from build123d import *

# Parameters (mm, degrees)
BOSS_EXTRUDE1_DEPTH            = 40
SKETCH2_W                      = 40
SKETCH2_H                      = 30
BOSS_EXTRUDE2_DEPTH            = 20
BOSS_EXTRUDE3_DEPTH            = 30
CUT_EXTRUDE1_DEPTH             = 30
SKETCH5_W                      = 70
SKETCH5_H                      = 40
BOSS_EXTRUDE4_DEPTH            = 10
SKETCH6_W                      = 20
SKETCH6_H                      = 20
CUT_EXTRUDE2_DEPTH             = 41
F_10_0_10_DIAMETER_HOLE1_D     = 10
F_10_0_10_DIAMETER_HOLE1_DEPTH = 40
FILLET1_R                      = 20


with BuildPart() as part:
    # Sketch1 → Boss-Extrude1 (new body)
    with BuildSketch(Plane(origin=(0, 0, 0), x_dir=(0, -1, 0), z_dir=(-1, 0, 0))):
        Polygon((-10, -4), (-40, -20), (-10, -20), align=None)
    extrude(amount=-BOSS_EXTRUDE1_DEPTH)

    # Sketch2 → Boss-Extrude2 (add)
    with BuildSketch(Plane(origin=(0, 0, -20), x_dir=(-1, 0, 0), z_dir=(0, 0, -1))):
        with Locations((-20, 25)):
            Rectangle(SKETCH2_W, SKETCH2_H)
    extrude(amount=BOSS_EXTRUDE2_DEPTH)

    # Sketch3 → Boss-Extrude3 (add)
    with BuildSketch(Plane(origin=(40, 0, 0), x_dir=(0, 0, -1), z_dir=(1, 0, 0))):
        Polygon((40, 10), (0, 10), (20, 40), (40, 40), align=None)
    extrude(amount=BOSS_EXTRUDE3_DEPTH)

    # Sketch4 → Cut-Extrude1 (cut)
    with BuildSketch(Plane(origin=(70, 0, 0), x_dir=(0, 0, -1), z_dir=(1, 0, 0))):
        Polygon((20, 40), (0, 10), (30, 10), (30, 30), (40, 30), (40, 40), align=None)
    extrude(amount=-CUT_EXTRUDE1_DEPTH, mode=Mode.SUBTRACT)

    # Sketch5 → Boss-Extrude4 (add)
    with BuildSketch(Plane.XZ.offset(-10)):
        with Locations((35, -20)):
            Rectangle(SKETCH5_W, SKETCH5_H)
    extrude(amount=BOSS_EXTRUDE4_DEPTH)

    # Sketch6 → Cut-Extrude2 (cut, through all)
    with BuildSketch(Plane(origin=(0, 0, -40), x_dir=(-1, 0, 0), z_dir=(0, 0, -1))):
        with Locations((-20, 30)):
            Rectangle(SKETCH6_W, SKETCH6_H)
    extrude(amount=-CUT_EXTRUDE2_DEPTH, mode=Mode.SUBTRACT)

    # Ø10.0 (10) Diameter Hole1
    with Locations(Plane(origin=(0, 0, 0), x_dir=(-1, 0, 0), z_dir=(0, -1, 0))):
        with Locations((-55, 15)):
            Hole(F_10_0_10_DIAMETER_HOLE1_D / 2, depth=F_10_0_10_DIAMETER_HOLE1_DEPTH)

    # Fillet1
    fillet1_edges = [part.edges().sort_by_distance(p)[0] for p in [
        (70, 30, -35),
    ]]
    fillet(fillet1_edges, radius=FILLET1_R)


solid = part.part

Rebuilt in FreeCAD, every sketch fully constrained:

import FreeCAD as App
import Part
import Sketcher
from FreeCAD import Vector


def edges_at(feature, points):
    """Names of the edges that pass closest to the given points."""
    edges = feature.Shape.Edges
    near = lambda p: min(range(len(edges)), key=lambda i: edges[i].distToShape(Part.Vertex(*p))[0])
    return sorted({f"Edge{near(p) + 1}" for p in points})


def add_polygon(sketch, points):
    """Adds a closed chain of lines whose ends are joined by coincident constraints."""
    first, n = sketch.GeometryCount, len(points)
    for a, b in zip(points, points[1:] + points[:1]):
        sketch.addGeometry(Part.LineSegment(App.Vector(*a, 0), App.Vector(*b, 0)), False)
    for i in range(n):
        sketch.addConstraint(Sketcher.Constraint("Coincident", first + i, 2, first + (i + 1) % n, 1))

doc = App.newDocument("Part")
body = doc.addObject("PartDesign::Body", "Body")

# Sketch on YZ plane
sketch1 = doc.addObject("Sketcher::SketchObject", "Sketch")
body.addObject(sketch1)
sketch1.AttachmentSupport = (doc.YZ_Plane, [""])
sketch1.MapMode = "FlatFace"
add_polygon(sketch1, [(10, -4), (40, -20), (10, -20)])  # lines 0-2
sketch1.addConstraint(Sketcher.Constraint("Horizontal", 1))
sketch1.addConstraint(Sketcher.Constraint("Vertical", 2))
sketch1.addConstraint(Sketcher.Constraint("DistanceX", 1, 2, 1, 1, 30.0))
sketch1.addConstraint(Sketcher.Constraint("DistanceY", 2, 1, 2, 2, 16.0))
sketch1.addConstraint(Sketcher.Constraint("DistanceX", -1, 1, 0, 2, 40.0))
sketch1.addConstraint(Sketcher.Constraint("DistanceY", 0, 2, -1, 1, 20.0))
pad1 = doc.addObject("PartDesign::Pad", "Pad")
body.addObject(pad1)
pad1.Profile = sketch1
pad1.Length = 40

# Sketch on XY plane
sketch2 = doc.addObject("Sketcher::SketchObject", "Sketch001")
body.addObject(sketch2)
sketch2.AttachmentSupport = (doc.XY_Plane, [""])
sketch2.MapMode = "FlatFace"
sketch2.AttachmentOffset = App.Placement(Vector(0, 0, -20), App.Rotation())
add_polygon(sketch2, [(40, 40), (40, 10), (0, 10), (0, 40)])  # lines 0-3
sketch2.addConstraint(Sketcher.Constraint("Vertical", 0))
sketch2.addConstraint(Sketcher.Constraint("Horizontal", 1))
sketch2.addConstraint(Sketcher.Constraint("Vertical", 2))
sketch2.addConstraint(Sketcher.Constraint("Horizontal", 3))
sketch2.addConstraint(Sketcher.Constraint("PointOnObject", 1, 2, -2))
sketch2.addConstraint(Sketcher.Constraint("DistanceX", 1, 2, 1, 1, 40.0))
sketch2.addConstraint(Sketcher.Constraint("DistanceY", 0, 2, 0, 1, 30.0))
sketch2.addConstraint(Sketcher.Constraint("DistanceY", -1, 1, 0, 2, 10.0))
pad2 = doc.addObject("PartDesign::Pad", "Pad001")
body.addObject(pad2)
pad2.Profile = sketch2
pad2.Length = 20
pad2.Reversed = True

# Sketch on YZ plane
sketch3 = doc.addObject("Sketcher::SketchObject", "Sketch002")
body.addObject(sketch3)
sketch3.AttachmentSupport = (doc.YZ_Plane, [""])
sketch3.MapMode = "FlatFace"
sketch3.AttachmentOffset = App.Placement(Vector(0, 0, 40), App.Rotation())
add_polygon(sketch3, [(10, 0), (10, -40), (40, -40), (40, -20)])  # lines 0-3
sketch3.addConstraint(Sketcher.Constraint("Vertical", 0))
sketch3.addConstraint(Sketcher.Constraint("Horizontal", 1))
sketch3.addConstraint(Sketcher.Constraint("Vertical", 2))
sketch3.addConstraint(Sketcher.Constraint("PointOnObject", 3, 2, -1))
sketch3.addConstraint(Sketcher.Constraint("DistanceX", 1, 1, 1, 2, 30.0))
sketch3.addConstraint(Sketcher.Constraint("DistanceY", 0, 2, 0, 1, 40.0))
sketch3.addConstraint(Sketcher.Constraint("DistanceY", 2, 1, 2, 2, 20.0))
sketch3.addConstraint(Sketcher.Constraint("DistanceX", -1, 1, 0, 2, 10.0))
pad3 = doc.addObject("PartDesign::Pad", "Pad002")
body.addObject(pad3)
pad3.Profile = sketch3
pad3.Length = 30

# Sketch on YZ plane
sketch4 = doc.addObject("Sketcher::SketchObject", "Sketch003")
body.addObject(sketch4)
sketch4.AttachmentSupport = (doc.YZ_Plane, [""])
sketch4.MapMode = "FlatFace"
sketch4.AttachmentOffset = App.Placement(Vector(0, 0, 70), App.Rotation())
add_polygon(sketch4, [(40, -20), (10, 0), (10, -30), (30, -30), (30, -40), (40, -40)])  # lines 0-5
sketch4.addConstraint(Sketcher.Constraint("Vertical", 1))
sketch4.addConstraint(Sketcher.Constraint("Horizontal", 2))
sketch4.addConstraint(Sketcher.Constraint("Vertical", 3))
sketch4.addConstraint(Sketcher.Constraint("Horizontal", 4))
sketch4.addConstraint(Sketcher.Constraint("Vertical", 5))
sketch4.addConstraint(Sketcher.Constraint("PointOnObject", 0, 2, -1))
sketch4.addConstraint(Sketcher.Constraint("Equal", 4, 3))
sketch4.addConstraint(Sketcher.Constraint("Equal", 2, 5))
sketch4.addConstraint(Sketcher.Constraint("DistanceX", 2, 1, 2, 2, 20.0))
sketch4.addConstraint(Sketcher.Constraint("DistanceX", 4, 1, 4, 2, 10.0))
sketch4.addConstraint(Sketcher.Constraint("DistanceY", 1, 2, 1, 1, 30.0))
sketch4.addConstraint(Sketcher.Constraint("DistanceX", -1, 1, 0, 2, 10.0))
pocket1 = doc.addObject("PartDesign::Pocket", "Pocket")
body.addObject(pocket1)
pocket1.Profile = sketch4
pocket1.Length = 30

# Sketch on XZ plane
sketch5 = doc.addObject("Sketcher::SketchObject", "Sketch004")
body.addObject(sketch5)
sketch5.AttachmentSupport = (doc.XZ_Plane, [""])
sketch5.MapMode = "FlatFace"
sketch5.AttachmentOffset = App.Placement(Vector(0, 0, -10), App.Rotation())
add_polygon(sketch5, [(0, 0), (0, -40), (70, -40), (70, 0)])  # lines 0-3
sketch5.addConstraint(Sketcher.Constraint("Vertical", 0))
sketch5.addConstraint(Sketcher.Constraint("Horizontal", 1))
sketch5.addConstraint(Sketcher.Constraint("Vertical", 2))
sketch5.addConstraint(Sketcher.Constraint("Horizontal", 3))
sketch5.addConstraint(Sketcher.Constraint("Coincident", 3, 2, -1, 1))
sketch5.addConstraint(Sketcher.Constraint("DistanceX", 1, 1, 1, 2, 70.0))
sketch5.addConstraint(Sketcher.Constraint("DistanceY", 0, 2, 0, 1, 40.0))
pad4 = doc.addObject("PartDesign::Pad", "Pad003")
body.addObject(pad4)
pad4.Profile = sketch5
pad4.Length = 10

# Sketch on XY plane
sketch6 = doc.addObject("Sketcher::SketchObject", "Sketch005")
body.addObject(sketch6)
sketch6.AttachmentSupport = (doc.XY_Plane, [""])
sketch6.MapMode = "FlatFace"
sketch6.AttachmentOffset = App.Placement(Vector(0, 0, -40), App.Rotation())
add_polygon(sketch6, [(30, 40), (30, 20), (10, 20), (10, 40)])  # lines 0-3
sketch6.addConstraint(Sketcher.Constraint("Vertical", 0))
sketch6.addConstraint(Sketcher.Constraint("Horizontal", 1))
sketch6.addConstraint(Sketcher.Constraint("Vertical", 2))
sketch6.addConstraint(Sketcher.Constraint("Horizontal", 3))
sketch6.addConstraint(Sketcher.Constraint("Equal", 3, 0))
sketch6.addConstraint(Sketcher.Constraint("DistanceX", 1, 2, 1, 1, 20.0))
sketch6.addConstraint(Sketcher.Constraint("DistanceX", -1, 1, 0, 2, 30.0))
sketch6.addConstraint(Sketcher.Constraint("DistanceY", -1, 1, 0, 2, 20.0))
pocket2 = doc.addObject("PartDesign::Pocket", "Pocket001")
body.addObject(pocket2)
pocket2.Profile = sketch6
pocket2.Type = "ThroughAll"
pocket2.Reversed = True

# Sketch on XZ plane
sketch7 = doc.addObject("Sketcher::SketchObject", "Sketch006")
body.addObject(sketch7)
sketch7.AttachmentSupport = (doc.XZ_Plane, [""])
sketch7.MapMode = "FlatFace"
sketch7.addGeometry(Part.Circle(Vector(55, -15, 0), Vector(0, 0, 1), 5), False)
sketch7.addConstraint(Sketcher.Constraint("Diameter", 0, 10.0))
sketch7.addConstraint(Sketcher.Constraint("DistanceX", -1, 1, 0, 3, 55.0))
sketch7.addConstraint(Sketcher.Constraint("DistanceY", 0, 3, -1, 1, 15.0))
doc.recompute()
hole = doc.addObject("PartDesign::Hole", "Hole")
body.addObject(hole)
hole.Profile = sketch7
hole.ThreadType = "None"
hole.Diameter = 10
hole.DepthType = "Dimension"
hole.Depth = 40
hole.DrillPoint = "Flat"
doc.recompute()

fillet = doc.addObject("PartDesign::Fillet", "Fillet")
body.addObject(fillet)
fillet.Base = (hole, edges_at(hole, [(70, 30, -35)]))
fillet.Radius = 20

doc.recompute()
